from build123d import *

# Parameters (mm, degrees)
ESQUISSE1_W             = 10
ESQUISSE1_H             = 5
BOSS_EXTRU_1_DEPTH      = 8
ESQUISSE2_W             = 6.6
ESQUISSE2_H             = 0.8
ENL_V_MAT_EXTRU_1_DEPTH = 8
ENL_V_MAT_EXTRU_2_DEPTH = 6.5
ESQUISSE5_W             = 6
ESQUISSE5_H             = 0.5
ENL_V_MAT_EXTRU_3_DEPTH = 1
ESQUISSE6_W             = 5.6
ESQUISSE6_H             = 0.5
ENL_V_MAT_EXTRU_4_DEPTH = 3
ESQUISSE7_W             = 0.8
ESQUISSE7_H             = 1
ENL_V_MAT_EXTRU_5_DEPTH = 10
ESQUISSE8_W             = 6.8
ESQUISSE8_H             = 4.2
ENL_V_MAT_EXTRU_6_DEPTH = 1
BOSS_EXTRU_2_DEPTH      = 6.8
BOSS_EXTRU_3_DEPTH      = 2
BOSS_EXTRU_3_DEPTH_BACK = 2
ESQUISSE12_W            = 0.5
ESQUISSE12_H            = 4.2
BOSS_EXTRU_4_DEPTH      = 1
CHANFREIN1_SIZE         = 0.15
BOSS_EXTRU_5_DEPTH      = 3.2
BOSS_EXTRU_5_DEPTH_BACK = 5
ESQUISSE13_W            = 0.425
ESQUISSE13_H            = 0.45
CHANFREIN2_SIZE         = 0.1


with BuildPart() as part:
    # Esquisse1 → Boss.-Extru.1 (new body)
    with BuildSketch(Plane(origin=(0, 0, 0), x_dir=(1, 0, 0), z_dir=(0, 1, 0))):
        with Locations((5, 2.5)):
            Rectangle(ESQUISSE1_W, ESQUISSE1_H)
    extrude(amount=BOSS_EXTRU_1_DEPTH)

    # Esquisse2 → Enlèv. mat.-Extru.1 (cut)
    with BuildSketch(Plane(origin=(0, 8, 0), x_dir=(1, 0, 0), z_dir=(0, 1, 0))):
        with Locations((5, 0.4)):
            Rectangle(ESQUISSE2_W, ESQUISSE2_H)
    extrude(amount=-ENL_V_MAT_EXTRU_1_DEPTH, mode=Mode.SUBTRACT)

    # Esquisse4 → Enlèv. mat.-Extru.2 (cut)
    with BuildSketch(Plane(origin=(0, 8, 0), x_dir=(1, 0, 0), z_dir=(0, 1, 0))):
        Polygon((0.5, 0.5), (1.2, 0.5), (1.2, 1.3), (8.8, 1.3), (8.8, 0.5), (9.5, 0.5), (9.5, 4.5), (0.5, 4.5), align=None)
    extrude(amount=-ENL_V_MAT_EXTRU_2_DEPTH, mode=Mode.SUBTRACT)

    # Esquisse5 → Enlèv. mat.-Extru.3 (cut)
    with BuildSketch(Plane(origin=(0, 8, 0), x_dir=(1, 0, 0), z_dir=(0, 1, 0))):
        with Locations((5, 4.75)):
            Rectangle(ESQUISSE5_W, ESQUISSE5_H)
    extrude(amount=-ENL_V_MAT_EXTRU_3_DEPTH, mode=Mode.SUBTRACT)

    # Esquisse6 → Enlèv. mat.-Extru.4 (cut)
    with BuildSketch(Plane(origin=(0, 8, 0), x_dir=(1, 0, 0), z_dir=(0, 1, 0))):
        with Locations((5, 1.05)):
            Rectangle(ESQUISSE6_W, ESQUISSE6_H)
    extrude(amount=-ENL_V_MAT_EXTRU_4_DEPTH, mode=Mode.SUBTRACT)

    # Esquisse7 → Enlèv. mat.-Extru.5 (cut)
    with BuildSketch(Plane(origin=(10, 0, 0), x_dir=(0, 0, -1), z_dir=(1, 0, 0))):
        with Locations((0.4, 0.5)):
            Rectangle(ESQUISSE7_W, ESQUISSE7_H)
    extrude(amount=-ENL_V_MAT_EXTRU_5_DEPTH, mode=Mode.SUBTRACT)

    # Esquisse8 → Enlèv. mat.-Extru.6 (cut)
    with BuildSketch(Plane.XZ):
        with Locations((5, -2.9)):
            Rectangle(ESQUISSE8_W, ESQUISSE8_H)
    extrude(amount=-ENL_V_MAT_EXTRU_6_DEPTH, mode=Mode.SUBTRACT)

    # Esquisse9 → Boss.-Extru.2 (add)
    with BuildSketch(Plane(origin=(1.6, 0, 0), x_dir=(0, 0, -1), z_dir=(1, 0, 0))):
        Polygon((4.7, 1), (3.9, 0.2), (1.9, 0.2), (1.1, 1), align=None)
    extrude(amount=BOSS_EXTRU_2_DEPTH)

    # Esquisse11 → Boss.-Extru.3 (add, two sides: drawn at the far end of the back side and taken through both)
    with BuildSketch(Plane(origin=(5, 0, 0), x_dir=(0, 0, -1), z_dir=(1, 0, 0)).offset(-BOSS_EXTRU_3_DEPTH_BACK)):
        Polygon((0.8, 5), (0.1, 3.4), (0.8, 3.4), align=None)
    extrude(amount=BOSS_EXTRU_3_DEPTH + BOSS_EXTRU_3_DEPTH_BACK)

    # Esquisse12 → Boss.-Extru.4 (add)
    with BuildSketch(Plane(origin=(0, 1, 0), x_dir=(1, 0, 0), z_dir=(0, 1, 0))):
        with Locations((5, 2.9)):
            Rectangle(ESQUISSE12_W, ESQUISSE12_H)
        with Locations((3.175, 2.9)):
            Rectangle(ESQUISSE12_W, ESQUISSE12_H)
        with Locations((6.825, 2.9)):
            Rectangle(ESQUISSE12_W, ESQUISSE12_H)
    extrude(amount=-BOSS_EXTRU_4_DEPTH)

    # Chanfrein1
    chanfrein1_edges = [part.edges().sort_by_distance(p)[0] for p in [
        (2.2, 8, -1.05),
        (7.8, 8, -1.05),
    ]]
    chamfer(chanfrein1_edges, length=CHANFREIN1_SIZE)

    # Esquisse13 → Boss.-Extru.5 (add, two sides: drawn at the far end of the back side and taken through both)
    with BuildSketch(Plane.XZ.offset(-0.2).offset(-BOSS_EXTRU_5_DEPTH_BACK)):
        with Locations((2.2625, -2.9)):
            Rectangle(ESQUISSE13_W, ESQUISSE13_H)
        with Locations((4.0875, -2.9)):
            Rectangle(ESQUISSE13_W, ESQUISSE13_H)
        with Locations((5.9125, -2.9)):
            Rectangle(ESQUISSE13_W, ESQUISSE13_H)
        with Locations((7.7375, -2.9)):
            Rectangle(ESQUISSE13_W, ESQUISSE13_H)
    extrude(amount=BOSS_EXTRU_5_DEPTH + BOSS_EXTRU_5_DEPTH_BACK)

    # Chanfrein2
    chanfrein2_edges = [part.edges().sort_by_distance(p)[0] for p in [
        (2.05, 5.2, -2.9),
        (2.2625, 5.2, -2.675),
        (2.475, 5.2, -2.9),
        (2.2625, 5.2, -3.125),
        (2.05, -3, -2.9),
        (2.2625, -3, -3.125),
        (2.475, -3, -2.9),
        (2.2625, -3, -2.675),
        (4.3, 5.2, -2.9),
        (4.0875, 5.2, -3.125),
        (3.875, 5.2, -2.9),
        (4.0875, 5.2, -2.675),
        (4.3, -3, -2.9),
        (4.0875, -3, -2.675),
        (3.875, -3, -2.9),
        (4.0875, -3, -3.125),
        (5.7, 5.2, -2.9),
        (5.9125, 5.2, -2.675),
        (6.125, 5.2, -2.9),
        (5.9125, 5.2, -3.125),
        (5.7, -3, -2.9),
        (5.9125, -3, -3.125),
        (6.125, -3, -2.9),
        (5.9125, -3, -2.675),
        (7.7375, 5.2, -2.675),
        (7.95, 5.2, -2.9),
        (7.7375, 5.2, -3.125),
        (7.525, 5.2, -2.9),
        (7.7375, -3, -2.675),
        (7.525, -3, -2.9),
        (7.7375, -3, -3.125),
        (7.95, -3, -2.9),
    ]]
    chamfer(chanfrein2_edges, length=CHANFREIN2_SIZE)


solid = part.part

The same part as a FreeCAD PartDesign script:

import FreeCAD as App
import Part
import Sketcher

V = App.Vector
Q = App.Units.Quantity


def edges_at(feature, points):
    """Names of the edges that pass closest to the given points."""
    edges = feature.Shape.Edges
    near = lambda p: min(range(len(edges)), key=lambda i: edges[i].distToShape(Part.Vertex(*p))[0])
    return sorted({f"Edge{near(p) + 1}" for p in points})

doc = App.newDocument("Part")
body = doc.addObject("PartDesign::Body", "Body")

# Sketch on XZ plane
sketch1 = doc.addObject("Sketcher::SketchObject", "Sketch")
body.addObject(sketch1)
sketch1.AttachmentSupport = (doc.XZ_Plane, [""])
sketch1.MapMode = "FlatFace"
sketch1.addGeometry([
    Part.LineSegment(V(0, -5, 0), V(0, 0, 0)),
    Part.LineSegment(V(0, 0, 0), V(10, 0, 0)),
    Part.LineSegment(V(10, 0, 0), V(10, -5, 0)),
    Part.LineSegment(V(10, -5, 0), V(0, -5, 0)),
], False)
sketch1.addConstraint([
    Sketcher.Constraint("Coincident", 0, 2, 1, 1),
    Sketcher.Constraint("Coincident", 1, 2, 2, 1),
    Sketcher.Constraint("Coincident", 2, 2, 3, 1),
    Sketcher.Constraint("Coincident", 3, 2, 0, 1),
    Sketcher.Constraint("Vertical", 0),
    Sketcher.Constraint("Horizontal", 1),
    Sketcher.Constraint("Vertical", 2),
    Sketcher.Constraint("Horizontal", 3),
    Sketcher.Constraint("Coincident", 0, 2, -1, 1),
    Sketcher.Constraint("DistanceX", 1, 1, 1, 2, Q("10 mm")),
    Sketcher.Constraint("DistanceY", 0, 1, 0, 2, Q("5 mm")),
])
pad1 = doc.addObject("PartDesign::Pad", "Pad")
body.addObject(pad1)
pad1.Profile = sketch1
pad1.Length = 8
pad1.Reversed = True

# Sketch on XZ plane
sketch2 = doc.addObject("Sketcher::SketchObject", "Sketch001")
body.addObject(sketch2)
sketch2.AttachmentSupport = (doc.XZ_Plane, [""])
sketch2.MapMode = "FlatFace"
sketch2.AttachmentOffset = App.Placement(V(0, 0, -8), App.Rotation())
sketch2.addGeometry([
    Part.LineSegment(V(1.7, -0.8, 0), V(1.7, 0, 0)),
    Part.LineSegment(V(1.7, 0, 0), V(8.3, 0, 0)),
    Part.LineSegment(V(8.3, 0, 0), V(8.3, -0.8, 0)),
    Part.LineSegment(V(8.3, -0.8, 0), V(1.7, -0.8, 0)),
], False)
sketch2.addConstraint([
    Sketcher.Constraint("Coincident", 0, 2, 1, 1),
    Sketcher.Constraint("Coincident", 1, 2, 2, 1),
    Sketcher.Constraint("Coincident", 2, 2, 3, 1),
    Sketcher.Constraint("Coincident", 3, 2, 0, 1),
    Sketcher.Constraint("Vertical", 0),
    Sketcher.Constraint("Horizontal", 1),
    Sketcher.Constraint("Vertical", 2),
    Sketcher.Constraint("Horizontal", 3),
    Sketcher.Constraint("PointOnObject", 0, 2, -1),
    Sketcher.Constraint("DistanceX", 1, 1, 1, 2, Q("6.6 mm")),
    Sketcher.Constraint("DistanceY", 0, 1, 0, 2, Q("0.8 mm")),
    Sketcher.Constraint("DistanceX", -1, 1, 0, 2, Q("1.7 mm")),
])
pocket1 = doc.addObject("PartDesign::Pocket", "Pocket")
body.addObject(pocket1)
pocket1.Profile = sketch2
pocket1.Length = 8
pocket1.Reversed = True

# Sketch on XZ plane
sketch3 = doc.addObject("Sketcher::SketchObject", "Sketch002")
body.addObject(sketch3)
sketch3.AttachmentSupport = (doc.XZ_Plane, [""])
sketch3.MapMode = "FlatFace"
sketch3.AttachmentOffset = App.Placement(V(0, 0, -8), App.Rotation())
sketch3.addGeometry([
    Part.LineSegment(V(0.5, -0.5, 0), V(1.2, -0.5, 0)),  # 0
    Part.LineSegment(V(1.2, -0.5, 0), V(1.2, -1.3, 0)),  # 1
    Part.LineSegment(V(1.2, -1.3, 0), V(8.8, -1.3, 0)),  # 2
    Part.LineSegment(V(8.8, -1.3, 0), V(8.8, -0.5, 0)),  # 3
    Part.LineSegment(V(8.8, -0.5, 0), V(9.5, -0.5, 0)),  # 4
    Part.LineSegment(V(9.5, -0.5, 0), V(9.5, -4.5, 0)),  # 5
    Part.LineSegment(V(9.5, -4.5, 0), V(0.5, -4.5, 0)),  # 6
    Part.LineSegment(V(0.5, -4.5, 0), V(0.5, -0.5, 0)),  # 7
], False)
sketch3.addConstraint([
    Sketcher.Constraint("Coincident", 0, 2, 1, 1),
    Sketcher.Constraint("Coincident", 1, 2, 2, 1),
    Sketcher.Constraint("Coincident", 2, 2, 3, 1),
    Sketcher.Constraint("Coincident", 3, 2, 4, 1),
    Sketcher.Constraint("Coincident", 4, 2, 5, 1),
    Sketcher.Constraint("Coincident", 5, 2, 6, 1),
    Sketcher.Constraint("Coincident", 6, 2, 7, 1),
    Sketcher.Constraint("Coincident", 7, 2, 0, 1),
    Sketcher.Constraint("Horizontal", 0),
    Sketcher.Constraint("Vertical", 1),
    Sketcher.Constraint("Horizontal", 2),
    Sketcher.Constraint("Vertical", 3),
    Sketcher.Constraint("Horizontal", 4),
    Sketcher.Constraint("Vertical", 5),
    Sketcher.Constraint("Horizontal", 6),
    Sketcher.Constraint("Vertical", 7),
    Sketcher.Constraint("Horizontal", 0, 2, 3, 2),
    Sketcher.Constraint("Equal", 0, 4),
    Sketcher.Constraint("DistanceX", 6, 2, 6, 1, Q("9 mm")),
    Sketcher.Constraint("DistanceY", 5, 2, 5, 1, Q("4 mm")),
    Sketcher.Constraint("DistanceX", 0, 1, 0, 2, Q("0.7 mm")),
    Sketcher.Constraint("DistanceY", 1, 2, 1, 1, Q("0.8 mm")),
    Sketcher.Constraint("DistanceX", -1, 1, 0, 2, Q("1.2 mm")),
    Sketcher.Constraint("DistanceY", 0, 2, -1, 1, Q("0.5 mm")),
])
pocket2 = doc.addObject("PartDesign::Pocket", "Pocket001")
body.addObject(pocket2)
pocket2.Profile = sketch3
pocket2.Length = 6.5
pocket2.Reversed = True

# Sketch on XZ plane
sketch4 = doc.addObject("Sketcher::SketchObject", "Sketch003")
body.addObject(sketch4)
sketch4.AttachmentSupport = (doc.XZ_Plane, [""])
sketch4.MapMode = "FlatFace"
sketch4.AttachmentOffset = App.Placement(V(0, 0, -8), App.Rotation())
sketch4.addGeometry([
    Part.LineSegment(V(2, -5, 0), V(2, -4.5, 0)),
    Part.LineSegment(V(2, -4.5, 0), V(8, -4.5, 0)),
    Part.LineSegment(V(8, -4.5, 0), V(8, -5, 0)),
    Part.LineSegment(V(8, -5, 0), V(2, -5, 0)),
], False)
sketch4.addConstraint([
    Sketcher.Constraint("Coincident", 0, 2, 1, 1),
    Sketcher.Constraint("Coincident", 1, 2, 2, 1),
    Sketcher.Constraint("Coincident", 2, 2, 3, 1),
    Sketcher.Constraint("Coincident", 3, 2, 0, 1),
    Sketcher.Constraint("Vertical", 0),
    Sketcher.Constraint("Horizontal", 1),
    Sketcher.Constraint("Vertical", 2),
    Sketcher.Constraint("Horizontal", 3),
    Sketcher.Constraint("DistanceX", 1, 1, 1, 2, Q("6 mm")),
    Sketcher.Constraint("DistanceY", 0, 1, 0, 2, Q("0.5 mm")),
    Sketcher.Constraint("DistanceX", -1, 1, 0, 2, Q("2 mm")),
    Sketcher.Constraint("DistanceY", 2, 2, -1, 1, Q("5 mm")),
])
pocket3 = doc.addObject("PartDesign::Pocket", "Pocket002")
body.addObject(pocket3)
pocket3.Profile = sketch4
pocket3.Length = 1
pocket3.Reversed = True

# Sketch on XZ plane
sketch5 = doc.addObject("Sketcher::SketchObject", "Sketch004")
body.addObject(sketch5)
sketch5.AttachmentSupport = (doc.XZ_Plane, [""])
sketch5.MapMode = "FlatFace"
sketch5.AttachmentOffset = App.Placement(V(0, 0, -8), App.Rotation())
sketch5.addGeometry([
    Part.LineSegment(V(2.2, -1.3, 0), V(2.2, -0.8, 0)),
    Part.LineSegment(V(2.2, -0.8, 0), V(7.8, -0.8, 0)),
    Part.LineSegment(V(7.8, -0.8, 0), V(7.8, -1.3, 0)),
    Part.LineSegment(V(7.8, -1.3, 0), V(2.2, -1.3, 0)),
], False)
sketch5.addConstraint([
    Sketcher.Constraint("Coincident", 0, 2, 1, 1),
    Sketcher.Constraint("Coincident", 1, 2, 2, 1),
    Sketcher.Constraint("Coincident", 2, 2, 3, 1),
    Sketcher.Constraint("Coincident", 3, 2, 0, 1),
    Sketcher.Constraint("Vertical", 0),
    Sketcher.Constraint("Horizontal", 1),
    Sketcher.Constraint("Vertical", 2),
    Sketcher.Constraint("Horizontal", 3),
    Sketcher.Constraint("DistanceX", 1, 1, 1, 2, Q("5.6 mm")),
    Sketcher.Constraint("DistanceY", 0, 1, 0, 2, Q("0.5 mm")),
    Sketcher.Constraint("DistanceX", -1, 1, 0, 2, Q("2.2 mm")),
    Sketcher.Constraint("DistanceY", 0, 2, -1, 1, Q("0.8 mm")),
])
pocket4 = doc.addObject("PartDesign::Pocket", "Pocket003")
body.addObject(pocket4)
pocket4.Profile = sketch5
pocket4.Length = 3
pocket4.Reversed = True

# Sketch on YZ plane
sketch6 = doc.addObject("Sketcher::SketchObject", "Sketch005")
body.addObject(sketch6)
sketch6.AttachmentSupport = (doc.YZ_Plane, [""])
sketch6.MapMode = "FlatFace"
sketch6.AttachmentOffset = App.Placement(V(0, 0, 10), App.Rotation())
sketch6.addGeometry([
    Part.LineSegment(V(1, 0, 0), V(0, 0, 0)),
    Part.LineSegment(V(0, 0, 0), V(0, -0.8, 0)),
    Part.LineSegment(V(0, -0.8, 0), V(1, -0.8, 0)),
    Part.LineSegment(V(1, -0.8, 0), V(1, 0, 0)),
], False)
sketch6.addConstraint([
    Sketcher.Constraint("Coincident", 0, 2, 1, 1),
    Sketcher.Constraint("Coincident", 1, 2, 2, 1),
    Sketcher.Constraint("Coincident", 2, 2, 3, 1),
    Sketcher.Constraint("Coincident", 3, 2, 0, 1),
    Sketcher.Constraint("Horizontal", 0),
    Sketcher.Constraint("Vertical", 1),
    Sketcher.Constraint("Horizontal", 2),
    Sketcher.Constraint("Vertical", 3),
    Sketcher.Constraint("Coincident", 0, 2, -1, 1),
    Sketcher.Constraint("DistanceX", 0, 2, 0, 1, Q("1 mm")),
    Sketcher.Constraint("DistanceY", 1, 2, 1, 1, Q("0.8 mm")),
])
pocket5 = doc.addObject("PartDesign::Pocket", "Pocket004")
body.addObject(pocket5)
pocket5.Profile = sketch6
pocket5.Length = 10

# Sketch on XZ plane
sketch7 = doc.addObject("Sketcher::SketchObject", "Sketch006")
body.addObject(sketch7)
sketch7.AttachmentSupport = (doc.XZ_Plane, [""])
sketch7.MapMode = "FlatFace"
sketch7.addGeometry([
    Part.LineSegment(V(1.6, -0.8, 0), V(1.6, -5, 0)),
    Part.LineSegment(V(1.6, -5, 0), V(8.4, -5, 0)),
    Part.LineSegment(V(8.4, -5, 0), V(8.4, -0.8, 0)),
    Part.LineSegment(V(8.4, -0.8, 0), V(1.6, -0.8, 0)),
], False)
sketch7.addConstraint([
    Sketcher.Constraint("Coincident", 0, 2, 1, 1),
    Sketcher.Constraint("Coincident", 1, 2, 2, 1),
    Sketcher.Constraint("Coincident", 2, 2, 3, 1),
    Sketcher.Constraint("Coincident", 3, 2, 0, 1),
    Sketcher.Constraint("Vertical", 0),
    Sketcher.Constraint("Horizontal", 1),
    Sketcher.Constraint("Vertical", 2),
    Sketcher.Constraint("Horizontal", 3),
    Sketcher.Constraint("DistanceX", 1, 1, 1, 2, Q("6.8 mm")),
    Sketcher.Constraint("DistanceY", 0, 2, 0, 1, Q("4.2 mm")),
    Sketcher.Constraint("DistanceY", 0, 2, -1, 1, Q("5 mm")),
    Sketcher.Constraint("DistanceX", -1, 1, 0, 2, Q("1.6 mm")),
])
pocket6 = doc.addObject("PartDesign::Pocket", "Pocket005")
body.addObject(pocket6)
pocket6.Profile = sketch7
pocket6.Length = 1

# Sketch on YZ plane
sketch8 = doc.addObject("Sketcher::SketchObject", "Sketch007")
body.addObject(sketch8)
sketch8.AttachmentSupport = (doc.YZ_Plane, [""])
sketch8.MapMode = "FlatFace"
sketch8.AttachmentOffset = App.Placement(V(0, 0, 1.6), App.Rotation())
sketch8.addGeometry([
    Part.LineSegment(V(0.2, -3.9, 0), V(1, -4.7, 0)),
    Part.LineSegment(V(1, -4.7, 0), V(1, -1.1, 0)),
    Part.LineSegment(V(1, -1.1, 0), V(0.2, -1.9, 0)),
    Part.LineSegment(V(0.2, -1.9, 0), V(0.2, -3.9, 0)),
], False)
sketch8.addConstraint([
    Sketcher.Constraint("Coincident", 0, 2, 1, 1),
    Sketcher.Constraint("Coincident", 1, 2, 2, 1),
    Sketcher.Constraint("Coincident", 2, 2, 3, 1),
    Sketcher.Constraint("Coincident", 3, 2, 0, 1),
    Sketcher.Constraint("Vertical", 1),
    Sketcher.Constraint("Vertical", 3),
    Sketcher.Constraint("Perpendicular", 0, 2),
    Sketcher.Constraint("Equal", 0, 2),
    Sketcher.Constraint("DistanceY", 3, 2, 3, 1, Q("2 mm")),
    Sketcher.Constraint("DistanceY", 1, 1, 1, 2, Q("3.6 mm")),
    Sketcher.Constraint("DistanceX", -1, 1, 0, 2, Q("1 mm")),
    Sketcher.Constraint("DistanceY", 0, 2, -1, 1, Q("4.7 mm")),
])
pad2 = doc.addObject("PartDesign::Pad", "Pad001")
body.addObject(pad2)
pad2.Profile = sketch8
pad2.Length = 6.8

# Sketch on YZ plane
sketch9 = doc.addObject("Sketcher::SketchObject", "Sketch008")
body.addObject(sketch9)
sketch9.AttachmentSupport = (doc.YZ_Plane, [""])
sketch9.MapMode = "FlatFace"
sketch9.AttachmentOffset = App.Placement(V(0, 0, 5), App.Rotation())
sketch9.addGeometry([
    Part.LineSegment(V(5, -0.8, 0), V(3.4, -0.1, 0)),
    Part.LineSegment(V(3.4, -0.1, 0), V(3.4, -0.8, 0)),
    Part.LineSegment(V(3.4, -0.8, 0), V(5, -0.8, 0)),
], False)
sketch9.addConstraint([
    Sketcher.Constraint("Coincident", 0, 2, 1, 1),
    Sketcher.Constraint("Coincident", 1, 2, 2, 1),
    Sketcher.Constraint("Coincident", 2, 2, 0, 1),
    Sketcher.Constraint("Vertical", 1),
    Sketcher.Constraint("Horizontal", 2),
    Sketcher.Constraint("DistanceX", 2, 1, 2, 2, Q("1.6 mm")),
    Sketcher.Constraint("DistanceY", 1, 2, 1, 1, Q("0.7 mm")),
    Sketcher.Constraint("DistanceX", -1, 1, 2, 2, Q("5 mm")),
    Sketcher.Constraint("DistanceY", 0, 2, -1, 1, Q("0.1 mm")),
])
pad3 = doc.addObject("PartDesign::Pad", "Pad002")
body.addObject(pad3)
pad3.Profile = sketch9
pad3.Type = "TwoLengths"
pad3.Length = 2
pad3.Length2 = 2

# Sketch on XZ plane
sketch10 = doc.addObject("Sketcher::SketchObject", "Sketch009")
body.addObject(sketch10)
sketch10.AttachmentSupport = (doc.XZ_Plane, [""])
sketch10.MapMode = "FlatFace"
sketch10.AttachmentOffset = App.Placement(V(0, 0, -1), App.Rotation())
sketch10.addGeometry([
    Part.LineSegment(V(4.8, -5, 0), V(4.8, -0.8, 0)),  # 0
    Part.LineSegment(V(4.8, -0.8, 0), V(5.2, -0.8, 0)),  # 1
    Part.LineSegment(V(5.2, -0.8, 0), V(5.2, -5, 0)),  # 2
    Part.LineSegment(V(5.2, -5, 0), V(4.8, -5, 0)),  # 3
    Part.LineSegment(V(2.9, -5, 0), V(2.9, -0.8, 0)),  # 4
    Part.LineSegment(V(2.9, -0.8, 0), V(3.4, -0.8, 0)),  # 5
    Part.LineSegment(V(3.4, -0.8, 0), V(3.4, -5, 0)),  # 6
    Part.LineSegment(V(3.4, -5, 0), V(2.9, -5, 0)),  # 7
    Part.LineSegment(V(6.6, -5, 0), V(6.6, -0.8, 0)),  # 8
    Part.LineSegment(V(6.6, -0.8, 0), V(7.1, -0.8, 0)),  # 9
    Part.LineSegment(V(7.1, -0.8, 0), V(7.1, -5, 0)),  # 10
    Part.LineSegment(V(7.1, -5, 0), V(6.6, -5, 0)),  # 11
], False)
sketch10.addConstraint([
    Sketcher.Constraint("Coincident", 0, 2, 1, 1),
    Sketcher.Constraint("Coincident", 1, 2, 2, 1),
    Sketcher.Constraint("Coincident", 2, 2, 3, 1),
    Sketcher.Constraint("Coincident", 3, 2, 0, 1),
    Sketcher.Constraint("Coincident", 4, 2, 5, 1),
    Sketcher.Constraint("Coincident", 5, 2, 6, 1),
    Sketcher.Constraint("Coincident", 6, 2, 7, 1),
    Sketcher.Constraint("Coincident", 7, 2, 4, 1),
    Sketcher.Constraint("Coincident", 8, 2, 9, 1),
    Sketcher.Constraint("Coincident", 9, 2, 10, 1),
    Sketcher.Constraint("Coincident", 10, 2, 11, 1),
    Sketcher.Constraint("Coincident", 11, 2, 8, 1),
    Sketcher.Constraint("Vertical", 0),
    Sketcher.Constraint("Horizontal", 1),
    Sketcher.Constraint("Vertical", 2),
    Sketcher.Constraint("Horizontal", 3),
    Sketcher.Constraint("Vertical", 4),
    Sketcher.Constraint("Horizontal", 5),
    Sketcher.Constraint("Vertical", 6),
    Sketcher.Constraint("Horizontal", 7),
    Sketcher.Constraint("Vertical", 8),
    Sketcher.Constraint("Horizontal", 9),
    Sketcher.Constraint("Vertical", 10),
    Sketcher.Constraint("Horizontal", 11),
    Sketcher.Constraint("Horizontal", 1, 2, 4, 2),
    Sketcher.Constraint("Horizontal", 3, 2, 6, 2),
    Sketcher.Constraint("Horizontal", 5, 2, 8, 2),
    Sketcher.Constraint("Horizontal", 7, 2, 10, 2),
    Sketcher.Constraint("Equal", 3, 5),
    Sketcher.Constraint("Equal", 7, 9),
    Sketcher.Constraint("DistanceX", 1, 1, 1, 2, Q("0.5 mm")),
    Sketcher.Constraint("DistanceY", 0, 1, 0, 2, Q("4.2 mm")),
    Sketcher.Constraint("DistanceY", 2, 2, -1, 1, Q("5 mm")),
    Sketcher.Constraint("DistanceX", -1, 1, 0, 2, Q("4.75 mm")),
    Sketcher.Constraint("DistanceX", 5, 2, 8, 2, Q("3.15 mm")),
    Sketcher.Constraint("DistanceX", -1, 1, 4, 2, Q("2.925 mm")),
])
pad4 = doc.addObject("PartDesign::Pad", "Pad003")
body.addObject(pad4)
pad4.Profile = sketch10
pad4.Length = 1
doc.recompute()

chamfer = doc.addObject("PartDesign::Chamfer", "Chamfer")
body.addObject(chamfer)
chamfer.Base = (pad4, edges_at(pad4, [(2.2, 8, -1.05), (7.8, 8, -1.05)]))
chamfer.Size = 0.15

# Sketch on XZ plane
sketch11 = doc.addObject("Sketcher::SketchObject", "Sketch010")
body.addObject(sketch11)
sketch11.AttachmentSupport = (doc.XZ_Plane, [""])
sketch11.MapMode = "FlatFace"
sketch11.AttachmentOffset = App.Placement(V(0, 0, -0.2), App.Rotation())
sketch11.addGeometry([
    Part.LineSegment(V(2.05, -2.67, 0), V(2.05, -3.12, 0)),  # 0
    Part.LineSegment(V(2.05, -3.12, 0), V(2.48, -3.12, 0)),  # 1
    Part.LineSegment(V(2.48, -3.12, 0), V(2.48, -2.67, 0)),  # 2
    Part.LineSegment(V(2.48, -2.67, 0), V(2.05, -2.67, 0)),  # 3
    Part.LineSegment(V(3.88, -2.67, 0), V(3.88, -3.12, 0)),  # 4
    Part.LineSegment(V(3.88, -3.12, 0), V(4.3, -3.12, 0)),  # 5
    Part.LineSegment(V(4.3, -3.12, 0), V(4.3, -2.67, 0)),  # 6
    Part.LineSegment(V(4.3, -2.67, 0), V(3.88, -2.67, 0)),  # 7
    Part.LineSegment(V(5.7, -2.67, 0), V(5.7, -3.12, 0)),  # 8
    Part.LineSegment(V(5.7, -3.12, 0), V(6.12, -3.12, 0)),  # 9
    Part.LineSegment(V(6.12, -3.12, 0), V(6.12, -2.67, 0)),  # 10
    Part.LineSegment(V(6.12, -2.67, 0), V(5.7, -2.67, 0)),  # 11
    Part.LineSegment(V(7.53, -2.67, 0), V(7.53, -3.12, 0)),  # 12
    Part.LineSegment(V(7.53, -3.12, 0), V(7.95, -3.12, 0)),  # 13
    Part.LineSegment(V(7.95, -3.12, 0), V(7.95, -2.67, 0)),  # 14
    Part.LineSegment(V(7.95, -2.67, 0), V(7.53, -2.67, 0)),  # 15
], False)
sketch11.addConstraint([
    Sketcher.Constraint("Coincident", 0, 2, 1, 1),
    Sketcher.Constraint("Coincident", 1, 2, 2, 1),
    Sketcher.Constraint("Coincident", 2, 2, 3, 1),
    Sketcher.Constraint("Coincident", 3, 2, 0, 1),
    Sketcher.Constraint("Coincident", 4, 2, 5, 1),
    Sketcher.Constraint("Coincident", 5, 2, 6, 1),
    Sketcher.Constraint("Coincident", 6, 2, 7, 1),
    Sketcher.Constraint("Coincident", 7, 2, 4, 1),
    Sketcher.Constraint("Coincident", 8, 2, 9, 1),
    Sketcher.Constraint("Coincident", 9, 2, 10, 1),
    Sketcher.Constraint("Coincident", 10, 2, 11, 1),
    Sketcher.Constraint("Coincident", 11, 2, 8, 1),
    Sketcher.Constraint("Coincident", 12, 2, 13, 1),
    Sketcher.Constraint("Coincident", 13, 2, 14, 1),
    Sketcher.Constraint("Coincident", 14, 2, 15, 1),
    Sketcher.Constraint("Coincident", 15, 2, 12, 1),
    Sketcher.Constraint("Vertical", 0),
    Sketcher.Constraint("Horizontal", 1),
    Sketcher.Constraint("Vertical", 2),
    Sketcher.Constraint("Horizontal", 3),
    Sketcher.Constraint("Vertical", 4),
    Sketcher.Constraint("Horizontal", 5),
    Sketcher.Constraint("Vertical", 6),
    Sketcher.Constraint("Horizontal", 7),
    Sketcher.Constraint("Vertical", 8),
    Sketcher.Constraint("Horizontal", 9),
    Sketcher.Constraint("Vertical", 10),
    Sketcher.Constraint("Horizontal", 11),
    Sketcher.Constraint("Vertical", 12),
    Sketcher.Constraint("Horizontal", 13),
    Sketcher.Constraint("Vertical", 14),
    Sketcher.Constraint("Horizontal", 15),
    Sketcher.Constraint("Horizontal", 1, 2, 4, 2),
    Sketcher.Constraint("Horizontal", 3, 2, 6, 2),
    Sketcher.Constraint("Horizontal", 5, 2, 8, 2),
    Sketcher.Constraint("Horizontal", 7, 2, 10, 2),
    Sketcher.Constraint("Horizontal", 9, 2, 12, 2),
    Sketcher.Constraint("Horizontal", 11, 2, 14, 2),
    Sketcher.Constraint("Equal", 3, 5),
    Sketcher.Constraint("Equal", 7, 9),
    Sketcher.Constraint("Equal", 11, 13),
    Sketcher.Constraint("DistanceY", 0, 2, 0, 1, Q("0.45 mm")),
    Sketcher.Constraint("DistanceX", -1, 1, 5, 2, Q("4.3 mm")),
    Sketcher.Constraint("DistanceX", -1, 1, 8, 2, Q("5.7 mm")),
    Sketcher.Constraint("DistanceX", 1, 2, 4, 2, Q("1.4 mm")),
    Sketcher.Constraint("DistanceX", 9, 2, 12, 2, Q("1.4 mm")),
    Sketcher.Constraint("DistanceX", 1, 1, 1, 2, Q("0.425 mm")),
    Sketcher.Constraint("DistanceY", 0, 2, -1, 1, Q("3.125 mm")),
])
pad5 = doc.addObject("PartDesign::Pad", "Pad004")
body.addObject(pad5)
pad5.Profile = sketch11
pad5.Type = "TwoLengths"
pad5.Length = 3.2
pad5.Length2 = 5
doc.recompute()

chamfer2 = doc.addObject("PartDesign::Chamfer", "Chamfer001")
body.addObject(chamfer2)
chamfer2.Base = (pad5, edges_at(pad5, [
    (2.05, 5.2, -2.9),
    (2.263, 5.2, -2.675),
    (2.475, 5.2, -2.9),
    (2.263, 5.2, -3.125),
    (2.05, -3, -2.9),
    (2.263, -3, -3.125),
    (2.475, -3, -2.9),
    (2.263, -3, -2.675),
    (4.3, 5.2, -2.9),
    (4.088, 5.2, -3.125),
    (3.875, 5.2, -2.9),
    (4.088, 5.2, -2.675),
    (4.3, -3, -2.9),
    (4.088, -3, -2.675),
    (3.875, -3, -2.9),
    (4.088, -3, -3.125),
    (5.7, 5.2, -2.9),
    (5.912, 5.2, -2.675),
    (6.125, 5.2, -2.9),
    (5.912, 5.2, -3.125),
    (5.7, -3, -2.9),
    (5.912, -3, -3.125),
    (6.125, -3, -2.9),
    (5.912, -3, -2.675),
    (7.737, 5.2, -2.675),
    (7.95, 5.2, -2.9),
    (7.737, 5.2, -3.125),
    (7.525, 5.2, -2.9),
    (7.737, -3, -2.675),
    (7.525, -3, -2.9),
    (7.737, -3, -3.125),
    (7.95, -3, -2.9),
]))
chamfer2.Size = 0.1

doc.recompute()
